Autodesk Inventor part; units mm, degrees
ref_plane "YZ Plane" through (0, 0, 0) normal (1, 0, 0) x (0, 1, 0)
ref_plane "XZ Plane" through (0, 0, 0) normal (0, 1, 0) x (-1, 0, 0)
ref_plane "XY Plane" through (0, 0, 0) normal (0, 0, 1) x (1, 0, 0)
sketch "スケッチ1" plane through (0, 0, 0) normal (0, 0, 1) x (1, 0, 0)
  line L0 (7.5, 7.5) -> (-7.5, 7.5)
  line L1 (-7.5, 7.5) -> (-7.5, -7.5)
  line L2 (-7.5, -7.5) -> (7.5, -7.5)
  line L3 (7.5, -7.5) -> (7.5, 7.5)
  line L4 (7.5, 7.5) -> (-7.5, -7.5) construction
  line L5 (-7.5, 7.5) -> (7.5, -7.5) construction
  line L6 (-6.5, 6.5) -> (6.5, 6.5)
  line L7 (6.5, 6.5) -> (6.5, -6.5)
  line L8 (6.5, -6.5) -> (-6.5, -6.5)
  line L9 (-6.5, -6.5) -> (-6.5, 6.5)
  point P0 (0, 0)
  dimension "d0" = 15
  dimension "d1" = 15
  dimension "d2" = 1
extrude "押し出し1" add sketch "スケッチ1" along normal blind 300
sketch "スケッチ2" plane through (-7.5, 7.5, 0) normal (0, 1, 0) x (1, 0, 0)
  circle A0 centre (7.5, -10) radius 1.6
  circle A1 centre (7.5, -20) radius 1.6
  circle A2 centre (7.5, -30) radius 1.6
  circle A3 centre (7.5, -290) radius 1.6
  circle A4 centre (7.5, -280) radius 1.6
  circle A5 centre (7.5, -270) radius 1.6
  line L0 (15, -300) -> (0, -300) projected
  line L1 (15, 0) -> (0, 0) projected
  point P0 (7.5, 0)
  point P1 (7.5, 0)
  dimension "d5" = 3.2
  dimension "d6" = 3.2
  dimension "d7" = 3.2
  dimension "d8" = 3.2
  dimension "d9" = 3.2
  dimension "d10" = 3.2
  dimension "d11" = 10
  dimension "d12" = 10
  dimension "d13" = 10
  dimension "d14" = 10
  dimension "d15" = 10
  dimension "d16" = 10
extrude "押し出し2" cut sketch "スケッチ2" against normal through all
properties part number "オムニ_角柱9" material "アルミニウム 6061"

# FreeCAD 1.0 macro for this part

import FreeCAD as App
import Part
import Sketcher

V = App.Vector

doc = App.newDocument("Part")
body = doc.addObject("PartDesign::Body", "Body")

sketch1 = body.newObject("Sketcher::SketchObject", "Sketch")
sketch1.AttachmentSupport = (doc.getObject("XY_Plane"), [""])
sketch1.MapMode = "FlatFace"
sketch1.addGeometry([
    Part.LineSegment(V(8, -8, 0), V(8, 8, 0)),
    Part.LineSegment(V(8, 8, 0), V(-8, 8, 0)),
    Part.LineSegment(V(-8, 8, 0), V(-8, -8, 0)),
    Part.LineSegment(V(-8, -8, 0), V(8, -8, 0)),
    Part.LineSegment(V(-6, -6, 0), V(-6, 6, 0)),
    Part.LineSegment(V(-6, 6, 0), V(6, 6, 0)),
    Part.LineSegment(V(6, 6, 0), V(6, -6, 0)),
    Part.LineSegment(V(6, -6, 0), V(-6, -6, 0)),
], False)
sketch1.addConstraint([
    Sketcher.Constraint("Coincident", 0, 2, 1, 1),
    Sketcher.Constraint("Coincident", 1, 2, 2, 1),
    Sketcher.Constraint("Coincident", 2, 2, 3, 1),
    Sketcher.Constraint("Coincident", 3, 2, 0, 1),
    Sketcher.Constraint("Coincident", 4, 2, 5, 1),
    Sketcher.Constraint("Coincident", 5, 2, 6, 1),
    Sketcher.Constraint("Coincident", 6, 2, 7, 1),
    Sketcher.Constraint("Coincident", 7, 2, 4, 1),
    Sketcher.Constraint("Vertical", 0),
    Sketcher.Constraint("Horizontal", 1),
    Sketcher.Constraint("Vertical", 2),
    Sketcher.Constraint("Horizontal", 3),
    Sketcher.Constraint("Vertical", 4),
    Sketcher.Constraint("Horizontal", 5),
    Sketcher.Constraint("Vertical", 6),
    Sketcher.Constraint("Horizontal", 7),
    Sketcher.Constraint("Symmetric", 0, 2, 2, 2, -1, 1),
    Sketcher.Constraint("Symmetric", 4, 2, 6, 2, -1, 1),
    Sketcher.Constraint("Equal", 3, 0),
    Sketcher.Constraint("Equal", 7, 4),
    Sketcher.Constraint("DistanceX", 1, 2, 1, 1, 15.0),
    Sketcher.Constraint("DistanceX", 1, 2, 4, 2, 1.0),
])
pad1 = body.newObject("PartDesign::Pad", "Pad")
pad1.Profile = sketch1
pad1.Length = 300

sketch2 = body.newObject("Sketcher::SketchObject", "Sketch001")
sketch2.AttachmentSupport = (doc.getObject("XZ_Plane"), [""])
sketch2.MapMode = "FlatFace"
sketch2.AttachmentOffset = App.Placement(V(0, 0, -7.5), App.Rotation())
sketch2.addGeometry([
    Part.Circle(V(0, 10, 0), V(0, 0, 1), 1.6),
    Part.Circle(V(0, 20, 0), V(0, 0, 1), 1.6),
    Part.Circle(V(0, 30, 0), V(0, 0, 1), 1.6),
    Part.Circle(V(0, 290, 0), V(0, 0, 1), 1.6),
    Part.Circle(V(0, 280, 0), V(0, 0, 1), 1.6),
    Part.Circle(V(0, 270, 0), V(0, 0, 1), 1.6),
], False)
sketch2.addConstraint([
    Sketcher.Constraint("Equal", 0, 1),
    Sketcher.Constraint("Equal", 1, 2),
    Sketcher.Constraint("Equal", 2, 3),
    Sketcher.Constraint("Equal", 3, 4),
    Sketcher.Constraint("Equal", 4, 5),
    Sketcher.Constraint("PointOnObject", 0, 3, -2),
    Sketcher.Constraint("PointOnObject", 1, 3, -2),
    Sketcher.Constraint("PointOnObject", 2, 3, -2),
    Sketcher.Constraint("PointOnObject", 3, 3, -2),
    Sketcher.Constraint("PointOnObject", 4, 3, -2),
    Sketcher.Constraint("PointOnObject", 5, 3, -2),
    Sketcher.Constraint("Diameter", 0, 3.2),
    Sketcher.Constraint("DistanceY", -1, 1, 0, 3, 10.0),
    Sketcher.Constraint("DistanceY", 0, 3, 1, 3, 10.0),
    Sketcher.Constraint("DistanceY", 1, 3, 2, 3, 10.0),
    Sketcher.Constraint("DistanceY", 4, 3, 3, 3, 10.0),
    Sketcher.Constraint("DistanceY", 5, 3, 4, 3, 10.0),
    Sketcher.Constraint("DistanceY", -1, 1, 3, 3, 290.0),
])
pocket1 = body.newObject("PartDesign::Pocket", "Pocket")
pocket1.Profile = sketch2
pocket1.Type = "ThroughAll"
pocket1.Reversed = True

doc.recompute()
